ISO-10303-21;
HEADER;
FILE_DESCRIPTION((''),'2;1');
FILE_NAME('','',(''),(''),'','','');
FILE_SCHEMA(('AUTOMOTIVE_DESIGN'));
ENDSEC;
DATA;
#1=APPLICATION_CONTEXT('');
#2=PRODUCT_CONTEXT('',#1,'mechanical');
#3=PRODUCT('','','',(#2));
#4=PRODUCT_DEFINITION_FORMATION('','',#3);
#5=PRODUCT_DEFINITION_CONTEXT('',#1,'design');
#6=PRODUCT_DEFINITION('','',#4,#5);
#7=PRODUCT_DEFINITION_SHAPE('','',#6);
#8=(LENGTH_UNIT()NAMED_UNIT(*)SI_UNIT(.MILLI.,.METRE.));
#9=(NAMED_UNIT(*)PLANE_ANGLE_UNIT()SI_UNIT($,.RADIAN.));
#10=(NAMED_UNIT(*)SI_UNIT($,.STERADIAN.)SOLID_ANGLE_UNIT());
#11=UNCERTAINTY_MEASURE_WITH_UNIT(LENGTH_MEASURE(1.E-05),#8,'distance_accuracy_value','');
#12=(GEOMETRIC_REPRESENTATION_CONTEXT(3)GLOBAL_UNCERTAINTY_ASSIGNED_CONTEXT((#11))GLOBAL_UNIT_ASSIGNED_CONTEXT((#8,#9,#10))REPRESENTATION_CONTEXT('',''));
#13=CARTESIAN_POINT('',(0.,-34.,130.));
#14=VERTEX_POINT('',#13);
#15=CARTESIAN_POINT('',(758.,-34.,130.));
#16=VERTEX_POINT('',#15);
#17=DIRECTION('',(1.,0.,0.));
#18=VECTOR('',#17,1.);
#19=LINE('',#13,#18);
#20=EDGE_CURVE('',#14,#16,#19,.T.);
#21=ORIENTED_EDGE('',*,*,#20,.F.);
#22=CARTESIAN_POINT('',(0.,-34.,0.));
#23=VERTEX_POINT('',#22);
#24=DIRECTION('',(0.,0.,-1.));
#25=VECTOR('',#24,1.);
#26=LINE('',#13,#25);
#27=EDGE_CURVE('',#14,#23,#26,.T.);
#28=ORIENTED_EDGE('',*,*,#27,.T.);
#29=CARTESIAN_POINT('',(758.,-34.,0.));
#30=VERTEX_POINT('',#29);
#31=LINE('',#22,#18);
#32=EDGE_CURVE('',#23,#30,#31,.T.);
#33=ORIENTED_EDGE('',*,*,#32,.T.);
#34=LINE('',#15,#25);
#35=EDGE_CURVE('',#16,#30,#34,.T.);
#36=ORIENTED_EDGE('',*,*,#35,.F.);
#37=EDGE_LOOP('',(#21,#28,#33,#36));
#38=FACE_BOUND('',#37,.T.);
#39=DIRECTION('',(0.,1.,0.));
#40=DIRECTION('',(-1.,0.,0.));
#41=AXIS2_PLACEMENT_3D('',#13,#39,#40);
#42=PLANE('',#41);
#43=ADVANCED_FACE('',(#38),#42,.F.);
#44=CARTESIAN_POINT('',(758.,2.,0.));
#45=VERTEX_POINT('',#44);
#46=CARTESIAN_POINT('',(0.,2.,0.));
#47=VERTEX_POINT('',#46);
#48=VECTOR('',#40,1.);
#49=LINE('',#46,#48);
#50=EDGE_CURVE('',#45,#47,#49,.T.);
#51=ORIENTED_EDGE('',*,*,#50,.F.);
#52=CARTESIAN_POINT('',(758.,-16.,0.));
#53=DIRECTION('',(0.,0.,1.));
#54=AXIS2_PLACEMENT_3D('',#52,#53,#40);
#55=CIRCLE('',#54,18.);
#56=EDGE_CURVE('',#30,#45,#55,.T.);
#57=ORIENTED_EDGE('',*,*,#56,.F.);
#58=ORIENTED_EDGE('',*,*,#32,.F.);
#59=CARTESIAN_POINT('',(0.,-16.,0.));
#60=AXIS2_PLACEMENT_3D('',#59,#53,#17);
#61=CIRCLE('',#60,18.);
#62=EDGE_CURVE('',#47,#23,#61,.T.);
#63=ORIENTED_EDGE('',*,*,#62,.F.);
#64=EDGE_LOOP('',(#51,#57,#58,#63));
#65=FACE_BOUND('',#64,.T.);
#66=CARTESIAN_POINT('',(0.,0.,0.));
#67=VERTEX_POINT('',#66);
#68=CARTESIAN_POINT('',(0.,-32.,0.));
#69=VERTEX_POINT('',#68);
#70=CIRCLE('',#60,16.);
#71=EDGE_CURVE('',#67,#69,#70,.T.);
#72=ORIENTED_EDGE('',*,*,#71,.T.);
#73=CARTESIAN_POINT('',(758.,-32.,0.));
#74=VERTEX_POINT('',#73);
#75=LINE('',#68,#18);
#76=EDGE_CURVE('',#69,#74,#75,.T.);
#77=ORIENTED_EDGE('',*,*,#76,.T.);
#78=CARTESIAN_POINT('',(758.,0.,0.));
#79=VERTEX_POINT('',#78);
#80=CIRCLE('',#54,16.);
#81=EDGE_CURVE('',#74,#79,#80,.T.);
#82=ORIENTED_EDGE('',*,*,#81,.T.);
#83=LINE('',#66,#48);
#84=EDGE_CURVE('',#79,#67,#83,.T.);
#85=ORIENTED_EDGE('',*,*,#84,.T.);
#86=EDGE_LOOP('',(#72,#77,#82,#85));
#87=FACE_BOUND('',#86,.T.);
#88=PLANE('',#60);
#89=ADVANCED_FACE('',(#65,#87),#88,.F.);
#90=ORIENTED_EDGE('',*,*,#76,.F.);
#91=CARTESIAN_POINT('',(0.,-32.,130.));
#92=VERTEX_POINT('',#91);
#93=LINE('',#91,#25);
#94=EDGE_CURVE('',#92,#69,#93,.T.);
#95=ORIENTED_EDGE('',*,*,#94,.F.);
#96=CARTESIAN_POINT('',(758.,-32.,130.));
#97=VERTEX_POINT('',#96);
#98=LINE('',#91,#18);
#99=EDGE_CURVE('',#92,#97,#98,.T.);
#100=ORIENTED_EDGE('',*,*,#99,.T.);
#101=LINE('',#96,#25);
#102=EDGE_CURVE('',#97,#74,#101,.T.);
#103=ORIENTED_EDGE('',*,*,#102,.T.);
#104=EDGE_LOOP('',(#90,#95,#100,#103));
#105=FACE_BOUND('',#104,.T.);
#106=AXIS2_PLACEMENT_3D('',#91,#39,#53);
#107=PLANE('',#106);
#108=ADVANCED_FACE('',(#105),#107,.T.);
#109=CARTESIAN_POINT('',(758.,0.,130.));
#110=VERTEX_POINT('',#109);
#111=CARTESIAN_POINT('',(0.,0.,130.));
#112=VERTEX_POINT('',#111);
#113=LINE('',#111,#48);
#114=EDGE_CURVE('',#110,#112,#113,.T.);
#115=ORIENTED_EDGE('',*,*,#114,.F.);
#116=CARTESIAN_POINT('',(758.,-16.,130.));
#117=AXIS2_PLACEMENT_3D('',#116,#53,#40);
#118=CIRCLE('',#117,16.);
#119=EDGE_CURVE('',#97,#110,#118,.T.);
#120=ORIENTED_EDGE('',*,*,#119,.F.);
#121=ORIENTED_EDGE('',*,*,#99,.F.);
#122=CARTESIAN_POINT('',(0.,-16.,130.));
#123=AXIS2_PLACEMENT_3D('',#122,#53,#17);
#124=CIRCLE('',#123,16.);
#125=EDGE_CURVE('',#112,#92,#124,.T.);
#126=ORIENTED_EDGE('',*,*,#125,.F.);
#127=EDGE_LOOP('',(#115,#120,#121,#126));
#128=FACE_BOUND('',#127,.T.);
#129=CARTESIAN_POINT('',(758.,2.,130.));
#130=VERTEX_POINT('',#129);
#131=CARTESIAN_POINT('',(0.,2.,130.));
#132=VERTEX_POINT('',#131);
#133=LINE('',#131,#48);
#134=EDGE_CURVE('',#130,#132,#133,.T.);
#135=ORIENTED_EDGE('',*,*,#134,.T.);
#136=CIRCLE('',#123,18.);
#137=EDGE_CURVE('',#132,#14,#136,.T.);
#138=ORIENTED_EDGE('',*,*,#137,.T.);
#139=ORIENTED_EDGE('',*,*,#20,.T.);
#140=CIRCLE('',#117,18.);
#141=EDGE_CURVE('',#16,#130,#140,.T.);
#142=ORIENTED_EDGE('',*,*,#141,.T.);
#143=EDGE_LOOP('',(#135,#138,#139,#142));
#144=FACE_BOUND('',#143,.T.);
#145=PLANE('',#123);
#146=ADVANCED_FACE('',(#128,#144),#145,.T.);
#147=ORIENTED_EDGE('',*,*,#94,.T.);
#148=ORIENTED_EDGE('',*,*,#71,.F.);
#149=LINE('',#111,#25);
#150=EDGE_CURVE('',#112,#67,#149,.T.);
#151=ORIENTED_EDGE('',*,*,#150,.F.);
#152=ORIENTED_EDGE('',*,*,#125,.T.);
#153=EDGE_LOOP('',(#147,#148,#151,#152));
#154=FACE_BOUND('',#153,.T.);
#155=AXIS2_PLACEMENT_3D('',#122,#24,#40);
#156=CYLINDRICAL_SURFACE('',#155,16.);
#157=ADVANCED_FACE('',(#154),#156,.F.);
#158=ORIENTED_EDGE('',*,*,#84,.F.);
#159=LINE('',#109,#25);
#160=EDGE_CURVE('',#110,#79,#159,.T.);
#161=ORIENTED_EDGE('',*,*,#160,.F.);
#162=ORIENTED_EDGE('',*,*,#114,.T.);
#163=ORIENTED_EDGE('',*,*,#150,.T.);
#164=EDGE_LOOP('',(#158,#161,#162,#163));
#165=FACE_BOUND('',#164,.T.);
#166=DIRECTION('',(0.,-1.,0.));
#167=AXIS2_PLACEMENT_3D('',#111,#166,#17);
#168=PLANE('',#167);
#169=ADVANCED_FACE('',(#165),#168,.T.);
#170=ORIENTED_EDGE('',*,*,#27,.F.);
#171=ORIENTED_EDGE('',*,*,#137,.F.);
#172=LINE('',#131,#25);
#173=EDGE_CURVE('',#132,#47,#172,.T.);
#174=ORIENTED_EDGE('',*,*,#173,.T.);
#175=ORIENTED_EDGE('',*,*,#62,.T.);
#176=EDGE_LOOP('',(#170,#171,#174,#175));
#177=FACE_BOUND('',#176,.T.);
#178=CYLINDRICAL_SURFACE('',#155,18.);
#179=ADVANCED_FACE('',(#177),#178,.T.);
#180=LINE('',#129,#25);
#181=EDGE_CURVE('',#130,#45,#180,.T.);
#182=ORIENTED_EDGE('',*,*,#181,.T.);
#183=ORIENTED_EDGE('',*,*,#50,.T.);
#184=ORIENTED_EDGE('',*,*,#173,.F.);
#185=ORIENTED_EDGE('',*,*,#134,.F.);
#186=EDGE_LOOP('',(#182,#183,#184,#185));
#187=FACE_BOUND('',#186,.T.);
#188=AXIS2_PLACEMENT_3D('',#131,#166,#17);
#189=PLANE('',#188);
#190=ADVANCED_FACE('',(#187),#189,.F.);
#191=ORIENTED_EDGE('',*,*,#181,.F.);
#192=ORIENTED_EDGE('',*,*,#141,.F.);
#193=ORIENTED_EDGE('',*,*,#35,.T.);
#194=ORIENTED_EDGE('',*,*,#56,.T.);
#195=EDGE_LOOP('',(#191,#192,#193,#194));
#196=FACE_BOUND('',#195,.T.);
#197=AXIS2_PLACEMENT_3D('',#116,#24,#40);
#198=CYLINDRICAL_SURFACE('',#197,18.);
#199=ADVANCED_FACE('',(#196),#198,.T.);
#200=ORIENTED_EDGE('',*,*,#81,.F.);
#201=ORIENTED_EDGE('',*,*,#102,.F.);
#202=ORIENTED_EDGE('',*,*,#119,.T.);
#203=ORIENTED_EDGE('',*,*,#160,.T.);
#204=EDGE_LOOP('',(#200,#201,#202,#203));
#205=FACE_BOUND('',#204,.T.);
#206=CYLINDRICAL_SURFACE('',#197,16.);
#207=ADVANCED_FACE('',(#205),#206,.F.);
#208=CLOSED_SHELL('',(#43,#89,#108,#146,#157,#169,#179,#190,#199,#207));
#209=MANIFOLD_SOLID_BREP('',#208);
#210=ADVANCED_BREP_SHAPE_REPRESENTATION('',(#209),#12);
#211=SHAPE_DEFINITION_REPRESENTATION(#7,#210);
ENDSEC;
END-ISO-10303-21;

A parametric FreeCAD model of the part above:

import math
import FreeCAD as App
import Part
import Sketcher
from FreeCAD import Vector

doc = App.newDocument("Part")
body = doc.addObject("PartDesign::Body", "Body")

sketch1 = body.newObject("Sketcher::SketchObject", "Sketch")
sketch1.AttachmentSupport = (doc.getObject("XY_Plane"), [""])
sketch1.MapMode = "FlatFace"
sketch1.addGeometry([
    Part.LineSegment(Vector(758, 2, 0), Vector(0, 2, 0)),
    Part.ArcOfCircle(Part.Circle(Vector(0, -16, 0), Vector(0, 0, 1), 18), math.radians(90), math.radians(270)),
    Part.LineSegment(Vector(0, -34, 0), Vector(758, -34, 0)),
    Part.ArcOfCircle(Part.Circle(Vector(758, -16, 0), Vector(0, 0, 1), 18), math.radians(-90), math.radians(90)),
    Part.LineSegment(Vector(0, 0, 0), Vector(758, 0, 0)),
    Part.ArcOfCircle(Part.Circle(Vector(758, -16, 0), Vector(0, 0, 1), 16), math.radians(-90), math.radians(90)),
    Part.LineSegment(Vector(758, -32, 0), Vector(0, -32, 0)),
    Part.ArcOfCircle(Part.Circle(Vector(0, -16, 0), Vector(0, 0, 1), 16), math.radians(90), math.radians(270)),
], False)
sketch1.addConstraint([
    Sketcher.Constraint("Tangent", 0, 2, 1, 1),
    Sketcher.Constraint("Tangent", 1, 2, 2, 1),
    Sketcher.Constraint("Tangent", 2, 2, 3, 1),
    Sketcher.Constraint("Tangent", 3, 2, 0, 1),
    Sketcher.Constraint("Tangent", 4, 2, 5, 2),
    Sketcher.Constraint("Tangent", 5, 1, 6, 1),
    Sketcher.Constraint("Tangent", 6, 2, 7, 2),
    Sketcher.Constraint("Tangent", 7, 1, 4, 1),
    Sketcher.Constraint("Horizontal", 0),
    Sketcher.Constraint("Horizontal", 2),
    Sketcher.Constraint("Horizontal", 4),
    Sketcher.Constraint("Horizontal", 6),
    Sketcher.Constraint("Coincident", 7, 1, -1, 1),
    Sketcher.Constraint("Coincident", 5, 3, 3, 3),
    Sketcher.Constraint("PointOnObject", 1, 3, -2),
    Sketcher.Constraint("Radius", 1, 18.0),
    Sketcher.Constraint("Radius", 5, 16.0),
    Sketcher.Constraint("DistanceX", 0, 2, 0, 1, 758.0),
])
pad1 = body.newObject("PartDesign::Pad", "Pad")
pad1.Profile = sketch1
pad1.Length = 130

doc.recompute()
